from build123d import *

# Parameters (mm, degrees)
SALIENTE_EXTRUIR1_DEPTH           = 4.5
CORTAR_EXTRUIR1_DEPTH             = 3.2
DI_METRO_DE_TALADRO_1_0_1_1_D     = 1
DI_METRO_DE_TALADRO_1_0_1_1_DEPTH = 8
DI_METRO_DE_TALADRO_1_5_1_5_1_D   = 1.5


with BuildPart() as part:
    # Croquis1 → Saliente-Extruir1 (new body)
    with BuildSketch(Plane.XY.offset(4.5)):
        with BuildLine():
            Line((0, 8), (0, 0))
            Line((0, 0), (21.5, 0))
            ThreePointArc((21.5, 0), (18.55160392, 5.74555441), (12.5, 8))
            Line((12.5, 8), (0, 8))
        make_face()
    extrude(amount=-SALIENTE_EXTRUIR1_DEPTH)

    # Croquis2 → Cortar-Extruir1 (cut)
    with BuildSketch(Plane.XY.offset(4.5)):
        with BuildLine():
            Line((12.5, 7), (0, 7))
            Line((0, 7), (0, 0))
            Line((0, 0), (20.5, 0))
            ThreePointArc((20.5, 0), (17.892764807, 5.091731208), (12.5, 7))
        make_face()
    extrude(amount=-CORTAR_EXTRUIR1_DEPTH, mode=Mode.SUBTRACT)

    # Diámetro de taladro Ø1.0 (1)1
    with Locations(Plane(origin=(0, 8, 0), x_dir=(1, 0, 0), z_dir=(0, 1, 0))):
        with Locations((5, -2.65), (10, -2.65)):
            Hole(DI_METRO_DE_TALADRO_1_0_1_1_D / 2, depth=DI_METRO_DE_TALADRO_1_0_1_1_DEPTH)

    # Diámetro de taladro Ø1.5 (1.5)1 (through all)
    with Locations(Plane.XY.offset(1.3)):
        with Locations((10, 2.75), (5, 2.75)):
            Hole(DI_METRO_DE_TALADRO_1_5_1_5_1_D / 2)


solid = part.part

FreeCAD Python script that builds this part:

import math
import FreeCAD as App
import Part
import Sketcher
from FreeCAD import Vector
Q = App.Units.Quantity

doc = App.newDocument("Part")
body = doc.addObject("PartDesign::Body", "Body")

sketch1 = body.newObject("Sketcher::SketchObject", "Sketch")
sketch1.AttachmentSupport = (doc.getObject("XY_Plane"), [""])
sketch1.MapMode = "FlatFace"
sketch1.AttachmentOffset = App.Placement(Vector(0, 0, 4.5), App.Rotation())
sketch1.addGeometry([
    Part.LineSegment(Vector(0, 8, 0), Vector(0, 0, 0)),
    Part.LineSegment(Vector(0, 0, 0), Vector(22, 0, 0)),
    Part.ArcOfCircle(Part.Circle(Vector(13, -1, 0), Vector(0, 0, 1), 9), math.radians(6), math.radians(91)),
    Part.LineSegment(Vector(12, 8, 0), Vector(0, 8, 0)),
], False)
sketch1.addConstraint([
    Sketcher.Constraint("Coincident", 0, 2, 1, 1),
    Sketcher.Constraint("Coincident", 1, 2, 2, 1),
    Sketcher.Constraint("Coincident", 2, 2, 3, 1),
    Sketcher.Constraint("Coincident", 3, 2, 0, 1),
    Sketcher.Constraint("Vertical", 0),
    Sketcher.Constraint("Horizontal", 1),
    Sketcher.Constraint("Horizontal", 3),
    Sketcher.Constraint("Coincident", 0, 2, -1, 1),
    Sketcher.Constraint("DistanceY", 0, 2, 0, 1, Q("8 mm")),
    Sketcher.Constraint("DistanceX", 1, 1, 1, 2, Q("21.5 mm")),
    Sketcher.Constraint("DistanceX", 3, 2, 3, 1, Q("12.5 mm")),
    Sketcher.Constraint("Radius", 2, Q("8.928477 mm")),
])
pad1 = body.newObject("PartDesign::Pad", "Pad")
pad1.Profile = sketch1
pad1.Length = 4.5
pad1.Reversed = True

sketch2 = body.newObject("Sketcher::SketchObject", "Sketch001")
sketch2.AttachmentSupport = (doc.getObject("XY_Plane"), [""])
sketch2.MapMode = "FlatFace"
sketch2.AttachmentOffset = App.Placement(Vector(0, 0, 4.5), App.Rotation())
sketch2.addGeometry([
    Part.LineSegment(Vector(12, 7, 0), Vector(0, 7, 0)),
    Part.LineSegment(Vector(0, 7, 0), Vector(0, 0, 0)),
    Part.LineSegment(Vector(0, 0, 0), Vector(20, 0, 0)),
    Part.ArcOfCircle(Part.Circle(Vector(13, -1, 0), Vector(0, 0, 1), 8), math.radians(5), math.radians(92)),
], False)
sketch2.addConstraint([
    Sketcher.Constraint("Coincident", 0, 2, 1, 1),
    Sketcher.Constraint("Coincident", 1, 2, 2, 1),
    Sketcher.Constraint("Coincident", 2, 2, 3, 1),
    Sketcher.Constraint("Coincident", 3, 2, 0, 1),
    Sketcher.Constraint("Horizontal", 0),
    Sketcher.Constraint("Vertical", 1),
    Sketcher.Constraint("Horizontal", 2),
    Sketcher.Constraint("Coincident", 1, 2, -1, 1),
    Sketcher.Constraint("DistanceY", 1, 2, 1, 1, Q("7 mm")),
    Sketcher.Constraint("DistanceX", 0, 2, 0, 1, Q("12.5 mm")),
    Sketcher.Constraint("DistanceX", 2, 1, 2, 2, Q("20.5 mm")),
    Sketcher.Constraint("Radius", 3, Q("7.735876 mm")),
])
pocket1 = body.newObject("PartDesign::Pocket", "Pocket")
pocket1.Profile = sketch2
pocket1.Length = 3.2

sketch3 = body.newObject("Sketcher::SketchObject", "Sketch002")
sketch3.AttachmentSupport = (doc.getObject("XZ_Plane"), [""])
sketch3.MapMode = "FlatFace"
sketch3.AttachmentOffset = App.Placement(Vector(0, 0, -8), App.Rotation())
sketch3.addGeometry([
    Part.Circle(Vector(5, 2.6, 0), Vector(0, 0, 1), 0.5),
    Part.Circle(Vector(10, 2.6, 0), Vector(0, 0, 1), 0.5),
], False)
sketch3.addConstraint([
    Sketcher.Constraint("Equal", 0, 1),
    Sketcher.Constraint("Horizontal", 0, 3, 1, 3),
    Sketcher.Constraint("Diameter", 0, Q("1 mm")),
    Sketcher.Constraint("DistanceX", -1, 1, 0, 3, Q("5 mm")),
    Sketcher.Constraint("DistanceX", -1, 1, 1, 3, Q("10 mm")),
    Sketcher.Constraint("DistanceY", -1, 1, 0, 3, Q("2.65 mm")),
])
doc.recompute()
hole = body.newObject("PartDesign::Hole", "Hole")
hole.Profile = sketch3
hole.ThreadType = "None"
hole.Diameter = 1
hole.DepthType = "Dimension"
hole.Depth = 8
hole.DrillPoint = "Flat"
hole.Reversed = True

sketch4 = body.newObject("Sketcher::SketchObject", "Sketch003")
sketch4.AttachmentSupport = (doc.getObject("XY_Plane"), [""])
sketch4.MapMode = "FlatFace"
sketch4.AttachmentOffset = App.Placement(Vector(0, 0, 1.3), App.Rotation())
sketch4.addGeometry([
    Part.Circle(Vector(10, 2.8, 0), Vector(0, 0, 1), 0.8),
    Part.Circle(Vector(5, 2.8, 0), Vector(0, 0, 1), 0.8),
], False)
sketch4.addConstraint([
    Sketcher.Constraint("Equal", 0, 1),
    Sketcher.Constraint("Horizontal", 0, 3, 1, 3),
    Sketcher.Constraint("Diameter", 0, Q("1.5 mm")),
    Sketcher.Constraint("DistanceX", -1, 1, 0, 3, Q("10 mm")),
    Sketcher.Constraint("DistanceX", -1, 1, 1, 3, Q("5 mm")),
    Sketcher.Constraint("DistanceY", -1, 1, 0, 3, Q("2.75 mm")),
])
doc.recompute()
hole2 = body.newObject("PartDesign::Hole", "Hole001")
hole2.Profile = sketch4
hole2.ThreadType = "None"
hole2.Diameter = 1.5
hole2.DepthType = "ThroughAll"

doc.recompute()
